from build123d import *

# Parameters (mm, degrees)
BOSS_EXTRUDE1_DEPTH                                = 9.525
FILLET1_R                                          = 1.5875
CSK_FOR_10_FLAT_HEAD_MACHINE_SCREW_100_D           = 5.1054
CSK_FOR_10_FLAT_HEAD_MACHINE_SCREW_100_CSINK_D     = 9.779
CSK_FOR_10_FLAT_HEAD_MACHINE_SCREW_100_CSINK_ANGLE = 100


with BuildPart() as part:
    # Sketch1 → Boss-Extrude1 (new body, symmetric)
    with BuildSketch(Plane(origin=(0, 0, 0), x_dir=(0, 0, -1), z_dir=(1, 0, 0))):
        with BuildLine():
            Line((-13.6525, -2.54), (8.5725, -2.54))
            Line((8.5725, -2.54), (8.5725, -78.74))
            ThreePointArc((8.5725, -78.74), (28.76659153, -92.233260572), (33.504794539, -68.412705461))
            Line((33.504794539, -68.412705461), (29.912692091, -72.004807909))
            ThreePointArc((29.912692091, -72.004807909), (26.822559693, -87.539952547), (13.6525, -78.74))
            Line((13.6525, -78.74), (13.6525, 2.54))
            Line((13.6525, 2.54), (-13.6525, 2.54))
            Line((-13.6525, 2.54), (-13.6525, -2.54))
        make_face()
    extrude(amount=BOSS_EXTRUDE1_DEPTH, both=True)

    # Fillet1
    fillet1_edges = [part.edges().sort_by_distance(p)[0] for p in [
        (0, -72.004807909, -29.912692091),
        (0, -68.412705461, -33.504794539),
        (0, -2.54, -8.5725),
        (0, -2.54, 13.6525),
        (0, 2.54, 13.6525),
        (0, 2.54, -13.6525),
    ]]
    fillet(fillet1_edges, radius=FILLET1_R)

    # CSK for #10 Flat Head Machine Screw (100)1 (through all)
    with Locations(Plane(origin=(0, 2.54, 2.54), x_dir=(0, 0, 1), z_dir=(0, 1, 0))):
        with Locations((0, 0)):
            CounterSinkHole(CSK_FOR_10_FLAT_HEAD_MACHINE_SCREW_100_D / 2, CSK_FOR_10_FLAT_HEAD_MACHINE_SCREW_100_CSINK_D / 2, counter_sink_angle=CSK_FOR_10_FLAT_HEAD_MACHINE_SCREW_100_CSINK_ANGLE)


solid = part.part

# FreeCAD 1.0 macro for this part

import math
import FreeCAD as App
import Part
import Sketcher
Q = App.Units.Quantity


def edges_at(feature, points):
    """Names of the edges that pass closest to the given points."""
    edges = feature.Shape.Edges
    near = lambda p: min(range(len(edges)), key=lambda i: edges[i].distToShape(Part.Vertex(*p))[0])
    return sorted({f"Edge{near(p) + 1}" for p in points})

doc = App.newDocument("Part")
body = doc.addObject("PartDesign::Body", "Body")

sketch1 = doc.addObject("Sketcher::SketchObject", "Sketch")
body.addObject(sketch1)
sketch1.AttachmentSupport = (doc.YZ_Plane, [""])
sketch1.MapMode = "FlatFace"
sketch1.addGeometry(Part.LineSegment(App.Vector(-3, 14, 0), App.Vector(-3, -9, 0)), False)
sketch1.addGeometry(Part.LineSegment(App.Vector(-3, -9, 0), App.Vector(-79, -9, 0)), False)
sketch1.addGeometry(Part.ArcOfCircle(Part.Circle(App.Vector(-79, -23, 0), App.Vector(0, 0, 1), 15), math.radians(90), math.radians(315)), False)
sketch1.addGeometry(Part.LineSegment(App.Vector(-68, -34, 0), App.Vector(-72, -30, 0)), False)
sketch1.addGeometry(Part.ArcOfCircle(Part.Circle(App.Vector(-79, -23, 0), App.Vector(0, 0, 1), 10), math.radians(90), math.radians(315)), False)
sketch1.addGeometry(Part.LineSegment(App.Vector(-79, -14, 0), App.Vector(3, -14, 0)), False)
sketch1.addGeometry(Part.LineSegment(App.Vector(3, -14, 0), App.Vector(3, 14, 0)), False)
sketch1.addGeometry(Part.LineSegment(App.Vector(3, 14, 0), App.Vector(-3, 14, 0)), False)
sketch1.addConstraint(Sketcher.Constraint("Coincident", 0, 2, 1, 1))
sketch1.addConstraint(Sketcher.Constraint("Tangent", 1, 2, 2, 1))
sketch1.addConstraint(Sketcher.Constraint("Coincident", 2, 2, 3, 1))
sketch1.addConstraint(Sketcher.Constraint("Coincident", 3, 2, 4, 2))
sketch1.addConstraint(Sketcher.Constraint("Tangent", 4, 1, 5, 1))
sketch1.addConstraint(Sketcher.Constraint("Coincident", 5, 2, 6, 1))
sketch1.addConstraint(Sketcher.Constraint("Coincident", 6, 2, 7, 1))
sketch1.addConstraint(Sketcher.Constraint("Coincident", 7, 2, 0, 1))
sketch1.addConstraint(Sketcher.Constraint("Vertical", 0))
sketch1.addConstraint(Sketcher.Constraint("Horizontal", 1))
sketch1.addConstraint(Sketcher.Constraint("Horizontal", 5))
sketch1.addConstraint(Sketcher.Constraint("Vertical", 6))
sketch1.addConstraint(Sketcher.Constraint("Horizontal", 7))
sketch1.addConstraint(Sketcher.Constraint("Coincident", 4, 3, 2, 3))
sketch1.addConstraint(Sketcher.Constraint("Symmetric", 5, 2, 7, 2, -1, 1))
sketch1.addConstraint(Sketcher.Constraint("DistanceX", 1, 2, 1, 1, Q("3 in")))
sketch1.addConstraint(Sketcher.Constraint("DistanceX", 5, 1, 5, 2, Q("3.2 in")))
sketch1.addConstraint(Sketcher.Constraint("Angle", 3, Q("135 deg")))
sketch1.addConstraint(Sketcher.Constraint("Radius", 2, Q("0.575 in")))
sketch1.addConstraint(Sketcher.Constraint("Radius", 4, Q("0.375 in")))
sketch1.addConstraint(Sketcher.Constraint("DistanceY", 0, 2, 0, 1, Q("0.875 in")))
sketch1.addConstraint(Sketcher.Constraint("DistanceX", 2, 2, -1, 1, Q("68.412705 mm")))
pad1 = doc.addObject("PartDesign::Pad", "Pad")
body.addObject(pad1)
pad1.Profile = sketch1
pad1.Length = Q("0.75 in")
pad1.Midplane = True
doc.recompute()

fillet = doc.addObject("PartDesign::Fillet", "Fillet")
body.addObject(fillet)
fillet.Base = (pad1, edges_at(pad1, [
    (0, -72.005, -29.913),
    (0, -68.413, -33.505),
    (0, -2.54, -8.572),
    (0, -2.54, 13.652),
    (0, 2.54, 13.652),
    (0, 2.54, -13.652),
]))
fillet.Radius = Q("0.0625 in")

sketch2 = doc.addObject("Sketcher::SketchObject", "Sketch001")
body.addObject(sketch2)
sketch2.AttachmentSupport = (doc.XZ_Plane, [""])
sketch2.MapMode = "FlatFace"
sketch2.AttachmentOffset = App.Placement(App.Vector(0, 0, -0.1 * 25.4), App.Rotation())
sketch2.addGeometry(Part.Circle(App.Vector(0, 2.5, 0), App.Vector(0, 0, 1), 2.6), False)
sketch2.addConstraint(Sketcher.Constraint("PointOnObject", 0, 3, -2))
sketch2.addConstraint(Sketcher.Constraint("Diameter", 0, Q("0.201 in")))
sketch2.addConstraint(Sketcher.Constraint("DistanceY", -1, 1, 0, 3, Q("0.1 in")))
doc.recompute()
hole = doc.addObject("PartDesign::Hole", "Hole")
body.addObject(hole)
hole.Profile = sketch2
hole.ThreadType = "None"
hole.Diameter = Q("0.201 in")
hole.DepthType = "ThroughAll"
hole.HoleCutType = "Countersink"
hole.HoleCutDiameter = Q("0.385 in")
hole.HoleCutCountersinkAngle = 100
hole.Reversed = True

doc.recompute()
